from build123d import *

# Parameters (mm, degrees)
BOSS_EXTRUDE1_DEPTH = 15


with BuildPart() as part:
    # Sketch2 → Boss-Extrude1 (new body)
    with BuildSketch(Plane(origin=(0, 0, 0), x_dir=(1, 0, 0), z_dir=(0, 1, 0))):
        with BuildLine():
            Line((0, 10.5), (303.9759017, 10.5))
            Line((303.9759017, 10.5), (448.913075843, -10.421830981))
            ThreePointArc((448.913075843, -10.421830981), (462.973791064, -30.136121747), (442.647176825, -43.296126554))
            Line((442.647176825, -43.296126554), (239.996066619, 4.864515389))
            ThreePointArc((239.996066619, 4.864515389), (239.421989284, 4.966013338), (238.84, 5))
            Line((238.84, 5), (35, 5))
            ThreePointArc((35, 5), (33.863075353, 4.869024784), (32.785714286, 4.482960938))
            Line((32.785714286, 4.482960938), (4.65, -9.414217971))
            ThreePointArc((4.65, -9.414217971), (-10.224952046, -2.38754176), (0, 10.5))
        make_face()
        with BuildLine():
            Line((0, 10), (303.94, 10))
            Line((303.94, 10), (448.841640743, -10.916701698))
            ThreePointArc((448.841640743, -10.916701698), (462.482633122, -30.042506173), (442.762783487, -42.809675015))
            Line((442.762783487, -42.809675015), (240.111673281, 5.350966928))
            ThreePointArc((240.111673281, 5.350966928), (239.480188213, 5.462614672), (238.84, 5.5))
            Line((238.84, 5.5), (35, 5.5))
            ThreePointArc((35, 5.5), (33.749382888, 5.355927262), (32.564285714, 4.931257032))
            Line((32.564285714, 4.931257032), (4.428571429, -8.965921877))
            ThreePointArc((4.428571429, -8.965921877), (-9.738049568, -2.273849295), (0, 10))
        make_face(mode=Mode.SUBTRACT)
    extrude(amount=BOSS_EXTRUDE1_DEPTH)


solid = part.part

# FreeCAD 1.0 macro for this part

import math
import FreeCAD as App
import Part
import Sketcher

V = App.Vector

doc = App.newDocument("Part")
body = doc.addObject("PartDesign::Body", "Body")

# Sketch on XZ plane
sketch1 = body.newObject("Sketcher::SketchObject", "Sketch")
sketch1.AttachmentSupport = (doc.getObject("XZ_Plane"), [""])
sketch1.MapMode = "FlatFace"
sketch1.addGeometry([
    Part.LineSegment(V(303.975902, -10.5, 0), V(0, -10.5, 0)),  # 0
    Part.ArcOfCircle(Part.Circle(V(0, 0, 0), V(0, 0, 1), 10.5), math.radians(63.713679), math.radians(270)),  # 1
    Part.LineSegment(V(4.65, 9.414218, 0), V(32.785714, -4.482961, 0)),  # 2
    Part.ArcOfCircle(Part.Circle(V(35, 0, 0), V(0, 0, 1), 5), math.radians(-116.286321), math.radians(-90)),  # 3
    Part.LineSegment(V(35, -5, 0), V(238.84, -5, 0)),  # 4
    Part.ArcOfCircle(Part.Circle(V(238.84, 0, 0), V(0, 0, 1), 5), math.radians(-90), math.radians(-76.631484)),  # 5
    Part.LineSegment(V(239.996067, -4.864515, 0), V(442.647177, 43.296127, 0)),  # 6
    Part.ArcOfCircle(Part.Circle(V(446.52, 27, 0), V(0, 0, 1), 16.75), math.radians(-81.786033), math.radians(103.368516)),  # 7
    Part.LineSegment(V(448.913076, 10.421831, 0), V(303.975902, -10.5, 0)),  # 8
    Part.LineSegment(V(0, -10, 0), V(303.94, -10, 0)),  # 9
    Part.LineSegment(V(303.94, -10, 0), V(448.841641, 10.916702, 0)),  # 10
    Part.ArcOfCircle(Part.Circle(V(446.52, 27, 0), V(0, 0, 1), 16.25), math.radians(-81.786033), math.radians(103.368516)),  # 11
    Part.LineSegment(V(442.762783, 42.809675, 0), V(240.111673, -5.350967, 0)),  # 12
    Part.ArcOfCircle(Part.Circle(V(238.84, 0, 0), V(0, 0, 1), 5.5), math.radians(-90), math.radians(-76.631484)),  # 13
    Part.LineSegment(V(238.84, -5.5, 0), V(35, -5.5, 0)),  # 14
    Part.ArcOfCircle(Part.Circle(V(35, 0, 0), V(0, 0, 1), 5.5), math.radians(-116.286321), math.radians(-90)),  # 15
    Part.LineSegment(V(32.564286, -4.931257, 0), V(4.428571, 8.965922, 0)),  # 16
    Part.ArcOfCircle(Part.Circle(V(0, 0, 0), V(0, 0, 1), 10), math.radians(63.713679), math.radians(270)),  # 17
], False)
sketch1.addConstraint([
    Sketcher.Constraint("Tangent", 0, 2, 1, 2),
    Sketcher.Constraint("Tangent", 1, 1, 2, 1),
    Sketcher.Constraint("Tangent", 2, 2, 3, 1),
    Sketcher.Constraint("Tangent", 3, 2, 4, 1),
    Sketcher.Constraint("Tangent", 4, 2, 5, 1),
    Sketcher.Constraint("Tangent", 5, 2, 6, 1),
    Sketcher.Constraint("Tangent", 6, 2, 7, 2),
    Sketcher.Constraint("Tangent", 7, 1, 8, 1),
    Sketcher.Constraint("Coincident", 8, 2, 0, 1),
    Sketcher.Constraint("Coincident", 9, 2, 10, 1),
    Sketcher.Constraint("Tangent", 10, 2, 11, 1),
    Sketcher.Constraint("Tangent", 11, 2, 12, 1),
    Sketcher.Constraint("Tangent", 12, 2, 13, 2),
    Sketcher.Constraint("Tangent", 13, 1, 14, 1),
    Sketcher.Constraint("Tangent", 14, 2, 15, 2),
    Sketcher.Constraint("Tangent", 15, 1, 16, 1),
    Sketcher.Constraint("Tangent", 16, 2, 17, 1),
    Sketcher.Constraint("Tangent", 17, 2, 9, 1),
    Sketcher.Constraint("Horizontal", 0),
    Sketcher.Constraint("Horizontal", 4),
    Sketcher.Constraint("Horizontal", 9),
    Sketcher.Constraint("Horizontal", 14),
    Sketcher.Constraint("Coincident", 1, 3, -1, 1),
    Sketcher.Constraint("Coincident", 17, 3, -1, 1),
    Sketcher.Constraint("Coincident", 11, 3, 7, 3),
    Sketcher.Constraint("Coincident", 13, 3, 5, 3),
    Sketcher.Constraint("Coincident", 15, 3, 3, 3),
    Sketcher.Constraint("Equal", 3, 5),
    Sketcher.Constraint("PointOnObject", 3, 3, -1),
    Sketcher.Constraint("Parallel", 8, 10),
    Sketcher.Constraint("Parallel", 6, 12),
    Sketcher.Constraint("Parallel", 2, 16),
    Sketcher.Constraint("Radius", 3, 5.0),
    Sketcher.Constraint("Radius", 17, 10.0),
    Sketcher.Constraint("Radius", 1, 10.5),
    Sketcher.Constraint("Radius", 7, 16.75),
    Sketcher.Constraint("DistanceX", -1, 1, 3, 3, 35.0),
    Sketcher.Constraint("DistanceY", -1, 1, 7, 3, 27.0),
    Sketcher.Constraint("DistanceX", 4, 1, 4, 2, 203.84),
    Sketcher.Constraint("DistanceX", 9, 1, 9, 2, 303.94),
    Sketcher.Constraint("DistanceX", -1, 1, 7, 3, 446.52),
])
pad1 = body.newObject("PartDesign::Pad", "Pad")
pad1.Profile = sketch1
pad1.Length = 15
pad1.Reversed = True

doc.recompute()
